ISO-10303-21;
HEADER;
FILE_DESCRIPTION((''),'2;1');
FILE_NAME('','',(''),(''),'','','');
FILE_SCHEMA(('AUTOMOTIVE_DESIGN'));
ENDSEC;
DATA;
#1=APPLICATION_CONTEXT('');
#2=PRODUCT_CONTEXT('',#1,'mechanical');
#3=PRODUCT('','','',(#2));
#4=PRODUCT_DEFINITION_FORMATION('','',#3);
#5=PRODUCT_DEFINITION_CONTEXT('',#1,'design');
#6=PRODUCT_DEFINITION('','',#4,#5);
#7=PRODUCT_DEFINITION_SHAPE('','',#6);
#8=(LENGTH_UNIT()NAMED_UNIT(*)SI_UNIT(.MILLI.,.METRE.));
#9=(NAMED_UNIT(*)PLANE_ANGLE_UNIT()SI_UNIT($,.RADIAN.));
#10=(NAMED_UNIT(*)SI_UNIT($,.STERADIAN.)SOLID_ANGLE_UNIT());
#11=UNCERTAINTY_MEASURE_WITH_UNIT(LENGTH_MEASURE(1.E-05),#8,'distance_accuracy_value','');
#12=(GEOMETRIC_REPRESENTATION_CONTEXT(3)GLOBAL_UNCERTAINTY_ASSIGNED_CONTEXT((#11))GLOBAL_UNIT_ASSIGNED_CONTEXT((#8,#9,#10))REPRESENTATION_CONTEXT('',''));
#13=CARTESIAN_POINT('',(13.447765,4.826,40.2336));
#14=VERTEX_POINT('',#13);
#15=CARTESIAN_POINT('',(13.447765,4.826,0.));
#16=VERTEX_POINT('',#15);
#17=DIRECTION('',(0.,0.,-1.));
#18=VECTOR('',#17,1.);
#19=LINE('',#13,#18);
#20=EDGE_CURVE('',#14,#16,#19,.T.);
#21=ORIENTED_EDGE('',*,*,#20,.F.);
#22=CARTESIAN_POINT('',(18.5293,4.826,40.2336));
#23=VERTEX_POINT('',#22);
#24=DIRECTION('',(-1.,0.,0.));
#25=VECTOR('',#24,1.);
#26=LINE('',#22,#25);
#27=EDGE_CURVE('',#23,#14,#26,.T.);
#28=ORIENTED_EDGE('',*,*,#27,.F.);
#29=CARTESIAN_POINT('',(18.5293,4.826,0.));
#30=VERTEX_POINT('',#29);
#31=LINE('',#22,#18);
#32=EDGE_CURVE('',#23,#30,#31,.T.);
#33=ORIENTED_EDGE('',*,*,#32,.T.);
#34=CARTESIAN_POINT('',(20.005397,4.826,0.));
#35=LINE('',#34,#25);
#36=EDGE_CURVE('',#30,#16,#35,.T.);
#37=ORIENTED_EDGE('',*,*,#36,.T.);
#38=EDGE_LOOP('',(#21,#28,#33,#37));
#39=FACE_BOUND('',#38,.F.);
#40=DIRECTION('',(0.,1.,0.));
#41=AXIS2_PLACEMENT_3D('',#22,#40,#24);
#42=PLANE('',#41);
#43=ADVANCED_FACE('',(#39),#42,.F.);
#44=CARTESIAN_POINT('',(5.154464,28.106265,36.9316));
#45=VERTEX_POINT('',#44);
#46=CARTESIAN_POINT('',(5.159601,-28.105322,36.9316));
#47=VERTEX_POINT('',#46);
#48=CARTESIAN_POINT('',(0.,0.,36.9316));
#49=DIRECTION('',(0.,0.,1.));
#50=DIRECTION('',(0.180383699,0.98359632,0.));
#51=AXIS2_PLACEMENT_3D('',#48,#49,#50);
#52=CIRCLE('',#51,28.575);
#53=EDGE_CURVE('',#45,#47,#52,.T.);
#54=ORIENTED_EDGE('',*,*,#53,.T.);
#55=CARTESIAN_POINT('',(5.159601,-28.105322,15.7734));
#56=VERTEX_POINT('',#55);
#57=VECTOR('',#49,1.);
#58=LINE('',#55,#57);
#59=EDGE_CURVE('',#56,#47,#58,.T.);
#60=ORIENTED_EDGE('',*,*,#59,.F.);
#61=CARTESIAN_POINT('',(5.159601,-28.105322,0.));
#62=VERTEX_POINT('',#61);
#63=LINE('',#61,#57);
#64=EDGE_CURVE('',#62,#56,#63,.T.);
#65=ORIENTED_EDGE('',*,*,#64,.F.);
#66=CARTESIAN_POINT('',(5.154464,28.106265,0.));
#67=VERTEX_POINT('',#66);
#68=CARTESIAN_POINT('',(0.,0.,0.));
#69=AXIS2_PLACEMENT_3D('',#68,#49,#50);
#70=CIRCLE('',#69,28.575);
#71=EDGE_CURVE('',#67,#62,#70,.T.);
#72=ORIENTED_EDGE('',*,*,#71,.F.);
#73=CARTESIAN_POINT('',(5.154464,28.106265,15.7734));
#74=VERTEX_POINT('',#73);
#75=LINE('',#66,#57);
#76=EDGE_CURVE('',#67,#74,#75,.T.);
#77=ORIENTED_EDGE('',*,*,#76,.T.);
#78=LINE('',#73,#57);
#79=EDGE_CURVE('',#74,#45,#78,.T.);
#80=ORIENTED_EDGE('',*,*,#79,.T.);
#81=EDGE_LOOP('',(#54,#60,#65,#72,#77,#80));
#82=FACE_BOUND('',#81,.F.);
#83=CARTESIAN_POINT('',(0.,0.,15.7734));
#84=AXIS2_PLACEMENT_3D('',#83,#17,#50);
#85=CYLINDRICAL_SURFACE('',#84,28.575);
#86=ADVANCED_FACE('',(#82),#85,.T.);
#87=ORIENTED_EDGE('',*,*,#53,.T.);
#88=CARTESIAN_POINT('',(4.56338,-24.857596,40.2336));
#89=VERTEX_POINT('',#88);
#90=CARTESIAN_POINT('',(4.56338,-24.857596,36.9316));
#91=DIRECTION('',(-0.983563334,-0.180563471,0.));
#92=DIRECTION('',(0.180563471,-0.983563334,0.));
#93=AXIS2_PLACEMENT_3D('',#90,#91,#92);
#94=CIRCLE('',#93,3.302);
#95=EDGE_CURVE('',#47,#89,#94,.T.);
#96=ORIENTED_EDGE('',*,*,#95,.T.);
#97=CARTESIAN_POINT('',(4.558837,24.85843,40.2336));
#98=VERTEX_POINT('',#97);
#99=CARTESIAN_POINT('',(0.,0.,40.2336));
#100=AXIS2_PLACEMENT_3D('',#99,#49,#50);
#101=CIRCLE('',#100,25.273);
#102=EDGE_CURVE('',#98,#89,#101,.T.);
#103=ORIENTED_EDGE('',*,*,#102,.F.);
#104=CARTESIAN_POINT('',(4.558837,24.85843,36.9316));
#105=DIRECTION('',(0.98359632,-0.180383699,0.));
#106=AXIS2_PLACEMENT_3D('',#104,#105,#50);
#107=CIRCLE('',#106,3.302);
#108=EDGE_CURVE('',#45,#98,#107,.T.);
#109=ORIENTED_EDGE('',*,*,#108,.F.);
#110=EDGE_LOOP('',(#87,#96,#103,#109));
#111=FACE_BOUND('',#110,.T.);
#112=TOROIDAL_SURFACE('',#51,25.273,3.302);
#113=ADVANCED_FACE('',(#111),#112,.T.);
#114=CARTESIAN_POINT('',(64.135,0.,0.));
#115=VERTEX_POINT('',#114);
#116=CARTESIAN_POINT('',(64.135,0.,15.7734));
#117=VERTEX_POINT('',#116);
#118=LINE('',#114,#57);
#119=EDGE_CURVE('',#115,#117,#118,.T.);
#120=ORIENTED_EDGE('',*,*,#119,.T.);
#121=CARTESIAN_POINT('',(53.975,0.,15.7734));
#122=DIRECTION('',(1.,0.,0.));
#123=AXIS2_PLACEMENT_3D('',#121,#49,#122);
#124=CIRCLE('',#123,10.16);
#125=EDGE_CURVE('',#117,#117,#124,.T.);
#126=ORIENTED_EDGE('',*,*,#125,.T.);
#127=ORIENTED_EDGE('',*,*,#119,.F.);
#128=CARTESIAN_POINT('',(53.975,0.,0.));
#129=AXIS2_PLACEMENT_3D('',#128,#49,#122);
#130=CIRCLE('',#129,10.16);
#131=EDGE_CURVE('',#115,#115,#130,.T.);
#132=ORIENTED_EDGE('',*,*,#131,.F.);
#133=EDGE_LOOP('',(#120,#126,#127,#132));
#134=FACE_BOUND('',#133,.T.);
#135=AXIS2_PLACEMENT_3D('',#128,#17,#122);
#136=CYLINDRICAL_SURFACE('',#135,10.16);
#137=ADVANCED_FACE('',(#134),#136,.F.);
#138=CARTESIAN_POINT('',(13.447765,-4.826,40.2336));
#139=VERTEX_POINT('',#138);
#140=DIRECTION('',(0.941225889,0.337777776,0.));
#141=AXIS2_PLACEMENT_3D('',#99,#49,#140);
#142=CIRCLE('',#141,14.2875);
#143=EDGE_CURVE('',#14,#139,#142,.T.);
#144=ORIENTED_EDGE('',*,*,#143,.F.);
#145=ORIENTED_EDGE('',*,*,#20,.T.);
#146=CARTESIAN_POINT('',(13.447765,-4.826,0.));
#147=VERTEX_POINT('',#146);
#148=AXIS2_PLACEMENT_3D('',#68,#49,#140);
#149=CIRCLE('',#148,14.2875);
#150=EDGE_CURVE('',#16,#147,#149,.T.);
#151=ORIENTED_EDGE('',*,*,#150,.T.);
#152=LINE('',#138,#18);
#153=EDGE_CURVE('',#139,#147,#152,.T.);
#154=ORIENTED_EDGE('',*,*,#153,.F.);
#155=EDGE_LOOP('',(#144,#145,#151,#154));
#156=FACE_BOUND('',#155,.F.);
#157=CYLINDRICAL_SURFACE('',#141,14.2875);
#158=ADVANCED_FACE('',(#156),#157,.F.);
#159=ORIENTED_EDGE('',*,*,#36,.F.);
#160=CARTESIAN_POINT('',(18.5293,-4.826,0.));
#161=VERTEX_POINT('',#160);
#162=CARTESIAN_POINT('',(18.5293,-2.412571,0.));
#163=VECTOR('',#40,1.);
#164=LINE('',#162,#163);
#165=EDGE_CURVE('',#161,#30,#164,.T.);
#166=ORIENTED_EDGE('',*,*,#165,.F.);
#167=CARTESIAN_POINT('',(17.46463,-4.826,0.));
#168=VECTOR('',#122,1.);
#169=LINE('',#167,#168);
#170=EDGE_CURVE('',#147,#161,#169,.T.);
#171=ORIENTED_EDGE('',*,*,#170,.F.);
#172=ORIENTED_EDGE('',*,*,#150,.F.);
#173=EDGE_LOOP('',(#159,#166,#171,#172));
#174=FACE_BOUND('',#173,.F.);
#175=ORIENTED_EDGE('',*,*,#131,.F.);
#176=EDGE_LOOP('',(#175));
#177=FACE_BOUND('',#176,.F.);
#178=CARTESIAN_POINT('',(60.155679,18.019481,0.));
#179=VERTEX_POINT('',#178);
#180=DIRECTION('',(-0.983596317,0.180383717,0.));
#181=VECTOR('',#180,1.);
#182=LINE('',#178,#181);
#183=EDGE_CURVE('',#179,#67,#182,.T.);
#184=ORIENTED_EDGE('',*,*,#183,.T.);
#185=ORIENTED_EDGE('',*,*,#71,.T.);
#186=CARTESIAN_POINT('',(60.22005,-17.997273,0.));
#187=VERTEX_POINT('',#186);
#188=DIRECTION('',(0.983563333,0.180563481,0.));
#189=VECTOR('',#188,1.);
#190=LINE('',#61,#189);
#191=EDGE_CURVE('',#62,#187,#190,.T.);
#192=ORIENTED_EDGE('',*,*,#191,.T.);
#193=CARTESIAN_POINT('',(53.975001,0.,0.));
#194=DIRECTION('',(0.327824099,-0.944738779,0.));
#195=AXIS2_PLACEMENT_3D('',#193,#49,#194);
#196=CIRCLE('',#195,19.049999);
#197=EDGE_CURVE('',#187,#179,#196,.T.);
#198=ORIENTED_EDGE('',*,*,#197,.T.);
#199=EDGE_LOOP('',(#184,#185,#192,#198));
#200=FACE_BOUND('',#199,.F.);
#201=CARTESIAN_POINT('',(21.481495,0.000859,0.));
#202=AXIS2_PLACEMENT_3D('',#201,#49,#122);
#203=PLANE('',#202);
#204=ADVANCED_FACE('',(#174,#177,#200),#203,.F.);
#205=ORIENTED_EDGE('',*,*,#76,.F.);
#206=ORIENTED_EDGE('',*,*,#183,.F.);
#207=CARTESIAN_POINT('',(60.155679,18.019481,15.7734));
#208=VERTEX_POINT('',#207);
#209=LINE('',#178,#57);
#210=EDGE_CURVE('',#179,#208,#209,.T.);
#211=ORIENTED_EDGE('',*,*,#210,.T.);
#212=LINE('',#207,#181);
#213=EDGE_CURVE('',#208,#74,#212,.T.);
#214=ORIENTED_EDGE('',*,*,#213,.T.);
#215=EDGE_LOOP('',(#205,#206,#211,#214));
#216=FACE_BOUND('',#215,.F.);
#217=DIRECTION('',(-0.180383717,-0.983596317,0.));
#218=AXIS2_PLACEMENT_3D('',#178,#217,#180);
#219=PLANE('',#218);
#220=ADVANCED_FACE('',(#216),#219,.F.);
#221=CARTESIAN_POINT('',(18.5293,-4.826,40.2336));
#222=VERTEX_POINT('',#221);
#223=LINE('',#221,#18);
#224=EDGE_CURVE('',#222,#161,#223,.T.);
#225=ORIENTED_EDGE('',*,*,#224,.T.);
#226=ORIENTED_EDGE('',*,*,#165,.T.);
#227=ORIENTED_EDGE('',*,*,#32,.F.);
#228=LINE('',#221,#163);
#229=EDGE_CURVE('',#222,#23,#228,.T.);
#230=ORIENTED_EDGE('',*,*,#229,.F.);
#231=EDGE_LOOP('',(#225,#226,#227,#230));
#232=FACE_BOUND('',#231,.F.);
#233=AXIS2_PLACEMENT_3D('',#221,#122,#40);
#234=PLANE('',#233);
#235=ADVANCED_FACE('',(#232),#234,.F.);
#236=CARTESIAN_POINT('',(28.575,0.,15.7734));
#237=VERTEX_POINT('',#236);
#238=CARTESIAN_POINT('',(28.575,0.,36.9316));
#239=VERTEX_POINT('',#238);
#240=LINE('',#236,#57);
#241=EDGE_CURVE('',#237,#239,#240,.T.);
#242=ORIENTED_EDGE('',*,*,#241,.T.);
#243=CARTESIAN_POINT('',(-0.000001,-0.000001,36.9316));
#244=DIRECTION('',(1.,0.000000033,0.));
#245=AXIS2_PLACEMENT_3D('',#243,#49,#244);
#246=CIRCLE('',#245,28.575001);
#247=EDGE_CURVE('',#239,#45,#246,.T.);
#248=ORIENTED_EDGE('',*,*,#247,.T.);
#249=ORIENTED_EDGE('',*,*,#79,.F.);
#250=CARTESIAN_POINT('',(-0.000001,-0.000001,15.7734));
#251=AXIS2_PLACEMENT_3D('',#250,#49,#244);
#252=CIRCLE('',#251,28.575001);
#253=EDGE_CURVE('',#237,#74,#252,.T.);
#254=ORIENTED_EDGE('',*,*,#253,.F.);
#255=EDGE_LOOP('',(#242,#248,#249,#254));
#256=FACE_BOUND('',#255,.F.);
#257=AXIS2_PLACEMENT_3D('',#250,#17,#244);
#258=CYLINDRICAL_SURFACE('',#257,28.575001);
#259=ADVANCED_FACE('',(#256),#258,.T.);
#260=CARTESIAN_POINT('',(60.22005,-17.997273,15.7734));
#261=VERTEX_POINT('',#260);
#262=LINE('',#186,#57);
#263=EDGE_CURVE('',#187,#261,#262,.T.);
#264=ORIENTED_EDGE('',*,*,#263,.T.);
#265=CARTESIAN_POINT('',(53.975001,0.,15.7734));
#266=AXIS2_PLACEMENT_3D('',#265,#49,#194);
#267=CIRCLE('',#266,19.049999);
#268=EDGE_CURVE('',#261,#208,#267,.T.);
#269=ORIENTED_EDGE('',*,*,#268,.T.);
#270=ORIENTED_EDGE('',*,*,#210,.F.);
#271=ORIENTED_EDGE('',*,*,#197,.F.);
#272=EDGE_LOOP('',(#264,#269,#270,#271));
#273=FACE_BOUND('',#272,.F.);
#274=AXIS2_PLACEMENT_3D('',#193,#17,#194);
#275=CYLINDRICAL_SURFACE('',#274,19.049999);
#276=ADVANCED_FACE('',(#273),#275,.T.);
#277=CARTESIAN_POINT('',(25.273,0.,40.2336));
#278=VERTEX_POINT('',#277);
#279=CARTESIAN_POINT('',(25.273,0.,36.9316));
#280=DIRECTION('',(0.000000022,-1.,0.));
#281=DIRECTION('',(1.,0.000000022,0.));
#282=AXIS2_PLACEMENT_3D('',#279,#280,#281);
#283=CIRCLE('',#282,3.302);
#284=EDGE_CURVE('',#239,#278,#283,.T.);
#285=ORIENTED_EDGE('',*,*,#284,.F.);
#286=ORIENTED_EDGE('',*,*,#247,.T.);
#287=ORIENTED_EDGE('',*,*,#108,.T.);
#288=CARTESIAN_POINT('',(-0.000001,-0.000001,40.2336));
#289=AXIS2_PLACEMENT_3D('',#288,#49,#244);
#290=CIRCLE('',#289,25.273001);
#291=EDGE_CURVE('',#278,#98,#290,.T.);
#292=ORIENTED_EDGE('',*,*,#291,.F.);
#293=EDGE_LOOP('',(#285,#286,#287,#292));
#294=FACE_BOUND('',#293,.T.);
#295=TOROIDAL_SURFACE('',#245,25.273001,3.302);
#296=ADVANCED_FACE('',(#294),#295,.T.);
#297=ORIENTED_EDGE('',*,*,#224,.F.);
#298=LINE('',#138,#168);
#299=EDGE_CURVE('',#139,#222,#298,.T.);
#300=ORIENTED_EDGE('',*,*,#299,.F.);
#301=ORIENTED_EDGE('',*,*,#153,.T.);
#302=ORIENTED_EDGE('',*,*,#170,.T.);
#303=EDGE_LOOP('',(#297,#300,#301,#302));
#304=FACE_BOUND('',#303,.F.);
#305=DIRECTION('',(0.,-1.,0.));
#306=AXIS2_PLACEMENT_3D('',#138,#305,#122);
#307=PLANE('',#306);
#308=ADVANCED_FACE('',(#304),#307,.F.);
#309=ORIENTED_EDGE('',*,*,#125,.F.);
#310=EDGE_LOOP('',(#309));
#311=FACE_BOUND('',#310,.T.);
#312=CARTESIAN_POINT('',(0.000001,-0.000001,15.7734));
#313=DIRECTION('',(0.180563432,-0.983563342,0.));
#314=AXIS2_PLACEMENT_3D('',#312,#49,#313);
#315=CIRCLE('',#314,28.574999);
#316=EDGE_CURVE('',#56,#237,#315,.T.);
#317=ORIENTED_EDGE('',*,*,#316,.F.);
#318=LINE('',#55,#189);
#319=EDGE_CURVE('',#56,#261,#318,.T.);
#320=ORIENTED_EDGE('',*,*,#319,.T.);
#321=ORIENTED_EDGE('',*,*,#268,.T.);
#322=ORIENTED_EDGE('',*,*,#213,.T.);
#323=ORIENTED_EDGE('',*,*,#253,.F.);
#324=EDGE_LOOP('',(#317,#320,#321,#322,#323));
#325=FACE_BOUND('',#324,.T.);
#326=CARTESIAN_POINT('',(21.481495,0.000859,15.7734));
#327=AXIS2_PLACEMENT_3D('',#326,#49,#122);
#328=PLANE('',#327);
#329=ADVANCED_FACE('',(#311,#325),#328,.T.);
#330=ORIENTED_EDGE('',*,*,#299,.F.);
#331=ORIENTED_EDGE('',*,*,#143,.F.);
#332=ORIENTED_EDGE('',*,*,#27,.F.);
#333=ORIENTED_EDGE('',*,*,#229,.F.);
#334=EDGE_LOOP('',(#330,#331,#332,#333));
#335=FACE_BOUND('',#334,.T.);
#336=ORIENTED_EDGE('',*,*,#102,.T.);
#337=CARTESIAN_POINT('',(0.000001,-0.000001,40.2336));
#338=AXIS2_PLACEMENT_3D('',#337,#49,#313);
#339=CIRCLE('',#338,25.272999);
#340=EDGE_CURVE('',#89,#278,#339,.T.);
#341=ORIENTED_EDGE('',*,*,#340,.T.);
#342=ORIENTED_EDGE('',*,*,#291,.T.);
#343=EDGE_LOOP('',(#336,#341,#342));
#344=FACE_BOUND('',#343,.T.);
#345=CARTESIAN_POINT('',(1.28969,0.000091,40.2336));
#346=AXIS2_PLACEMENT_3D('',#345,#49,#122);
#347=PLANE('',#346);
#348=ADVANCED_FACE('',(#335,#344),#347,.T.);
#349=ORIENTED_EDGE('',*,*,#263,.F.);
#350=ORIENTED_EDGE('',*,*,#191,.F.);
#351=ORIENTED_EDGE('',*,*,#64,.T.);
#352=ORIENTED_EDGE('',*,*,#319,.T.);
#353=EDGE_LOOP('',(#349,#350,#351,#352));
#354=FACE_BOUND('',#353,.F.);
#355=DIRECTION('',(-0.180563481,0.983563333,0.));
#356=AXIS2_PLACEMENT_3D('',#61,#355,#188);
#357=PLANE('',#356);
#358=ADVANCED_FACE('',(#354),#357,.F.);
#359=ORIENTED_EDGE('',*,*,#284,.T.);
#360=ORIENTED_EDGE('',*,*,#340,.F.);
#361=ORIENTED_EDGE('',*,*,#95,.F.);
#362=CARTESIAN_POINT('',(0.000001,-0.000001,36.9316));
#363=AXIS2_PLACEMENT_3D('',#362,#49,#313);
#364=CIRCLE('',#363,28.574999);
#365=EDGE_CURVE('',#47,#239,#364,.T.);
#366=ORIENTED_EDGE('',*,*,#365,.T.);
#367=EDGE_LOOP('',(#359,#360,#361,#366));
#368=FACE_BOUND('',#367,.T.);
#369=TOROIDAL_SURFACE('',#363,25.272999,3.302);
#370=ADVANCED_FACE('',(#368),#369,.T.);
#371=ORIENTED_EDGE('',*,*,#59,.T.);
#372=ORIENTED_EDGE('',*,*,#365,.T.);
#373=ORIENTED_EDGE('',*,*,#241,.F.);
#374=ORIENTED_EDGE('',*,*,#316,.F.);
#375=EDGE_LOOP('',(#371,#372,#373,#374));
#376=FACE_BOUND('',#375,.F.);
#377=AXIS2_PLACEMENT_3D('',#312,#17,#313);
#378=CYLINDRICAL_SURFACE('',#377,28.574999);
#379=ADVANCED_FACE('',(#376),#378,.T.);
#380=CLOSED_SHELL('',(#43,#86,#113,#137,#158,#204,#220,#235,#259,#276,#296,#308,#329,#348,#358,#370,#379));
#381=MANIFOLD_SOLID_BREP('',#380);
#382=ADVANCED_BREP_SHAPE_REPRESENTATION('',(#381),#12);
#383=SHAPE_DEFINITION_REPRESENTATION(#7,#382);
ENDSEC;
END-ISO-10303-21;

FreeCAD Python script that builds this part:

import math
import FreeCAD as App
import Part
import Sketcher
from FreeCAD import Vector
Q = App.Units.Quantity


def edges_at(feature, points):
    """Names of the edges that pass closest to the given points."""
    edges = feature.Shape.Edges
    near = lambda p: min(range(len(edges)), key=lambda i: edges[i].distToShape(Part.Vertex(*p))[0])
    return sorted({f"Edge{near(p) + 1}" for p in points})

doc = App.newDocument("Part")
body = doc.addObject("PartDesign::Body", "Body")

# Sketch on XY plane
sketch1 = body.newObject("Sketcher::SketchObject", "Sketch")
sketch1.AttachmentSupport = (doc.getObject("XY_Plane"), [""])
sketch1.MapMode = "FlatFace"
sketch1.addGeometry(Part.LineSegment(Vector(60.155679, 18.019481, 0), Vector(5.154464, 28.106265, 0)), False)
sketch1.addGeometry(Part.ArcOfCircle(Part.Circle(Vector(0, 0, 0), Vector(0, 0, 1), 28.575), math.radians(79.60789), math.radians(280.402582)), False)
sketch1.addGeometry(Part.LineSegment(Vector(5.159601, -28.105322, 0), Vector(60.22005, -17.997273, 0)), False)
sketch1.addGeometry(Part.ArcOfCircle(Part.Circle(Vector(53.975001, 0, 0), Vector(0, 0, 1), 19.049999), math.radians(-70.86324), math.radians(71.068043)), False)
sketch1.addGeometry(Part.Circle(Vector(53.975, 0, 0), Vector(0, 0, 1), 10.16), False)
sketch1.addConstraint(Sketcher.Constraint("Coincident", 0, 2, 1, 1))
sketch1.addConstraint(Sketcher.Constraint("Coincident", 1, 2, 2, 1))
sketch1.addConstraint(Sketcher.Constraint("Coincident", 2, 2, 3, 1))
sketch1.addConstraint(Sketcher.Constraint("Coincident", 3, 2, 0, 1))
sketch1.addConstraint(Sketcher.Constraint("Coincident", 1, 3, -1, 1))
sketch1.addConstraint(Sketcher.Constraint("Coincident", 4, 3, 3, 3))
sketch1.addConstraint(Sketcher.Constraint("PointOnObject", 3, 3, -1))
sketch1.addConstraint(Sketcher.Constraint("Diameter", 4, Q("0.8 in")))
sketch1.addConstraint(Sketcher.Constraint("Radius", 3, Q("0.75 in")))
sketch1.addConstraint(Sketcher.Constraint("Radius", 1, Q("1.125 in")))
sketch1.addConstraint(Sketcher.Constraint("DistanceX", -1, 1, 3, 3, Q("2.125 in")))
sketch1.addConstraint(Sketcher.Constraint("DistanceY", 2, 2, 0, 2, Q("1.8150999 in")))
sketch1.addConstraint(Sketcher.Constraint("DistanceX", -1, 1, 1, 2, 5.159601))
sketch1.addConstraint(Sketcher.Constraint("DistanceX", -1, 1, 2, 2, 60.22005))
sketch1.addConstraint(Sketcher.Constraint("DistanceX", -1, 1, 3, 2, 60.155679))
pad1 = body.newObject("PartDesign::Pad", "Pad")
pad1.Profile = sketch1
pad1.Length = Q("0.621 in")

# Sketch on XY plane
sketch2 = body.newObject("Sketcher::SketchObject", "Sketch001")
sketch2.AttachmentSupport = (doc.getObject("XY_Plane"), [""])
sketch2.MapMode = "FlatFace"
sketch2.AttachmentOffset = App.Placement(Vector(0, 0, 0.621 * 25.4), App.Rotation())
sketch2.addGeometry(Part.ArcOfCircle(Part.Circle(Vector(0.000001, -0.000001, 0), Vector(0, 0, 1), 28.574999), math.radians(-79.59742), math.radians(0.000001)), False)
sketch2.addGeometry(Part.ArcOfCircle(Part.Circle(Vector(-0.000001, -0.000001, 0), Vector(0, 0, 1), 28.575001), math.radians(0.000002), math.radians(79.607888)), False)
sketch2.addGeometry(Part.ArcOfCircle(Part.Circle(Vector(0, 0, 0), Vector(0, 0, 1), 28.575), math.radians(79.60789), math.radians(280.402582)), False)
sketch2.addConstraint(Sketcher.Constraint("Tangent", 0, 2, 1, 1))
sketch2.addConstraint(Sketcher.Constraint("Tangent", 1, 2, 2, 1))
sketch2.addConstraint(Sketcher.Constraint("Tangent", 2, 2, 0, 1))
sketch2.addConstraint(Sketcher.Constraint("Coincident", 0, 3, -1, 1))
sketch2.addConstraint(Sketcher.Constraint("PointOnObject", 0, 2, -1))
sketch2.addConstraint(Sketcher.Constraint("Radius", 0, Q("1.125 in")))
sketch2.addConstraint(Sketcher.Constraint("DistanceX", -1, 1, 2, 2, 5.159601))
sketch2.addConstraint(Sketcher.Constraint("DistanceX", -1, 1, 1, 2, 5.154464))
pad2 = body.newObject("PartDesign::Pad", "Pad001")
pad2.Profile = sketch2
pad2.Length = Q("0.963 in")

# Sketch on XY plane
sketch3 = body.newObject("Sketcher::SketchObject", "Sketch002")
sketch3.AttachmentSupport = (doc.getObject("XY_Plane"), [""])
sketch3.MapMode = "FlatFace"
sketch3.AttachmentOffset = App.Placement(Vector(0, 0, 1.584 * 25.4), App.Rotation())
sketch3.addGeometry(Part.LineSegment(Vector(18.5293, 4.826, 0), Vector(13.447765, 4.826, 0)), False)
sketch3.addGeometry(Part.ArcOfCircle(Part.Circle(Vector(0, 0, 0), Vector(0, 0, 1), 14.2875), math.radians(19.741542), math.radians(340.258458)), False)
sketch3.addGeometry(Part.LineSegment(Vector(13.447765, -4.826, 0), Vector(18.5293, -4.826, 0)), False)
sketch3.addGeometry(Part.LineSegment(Vector(18.5293, -4.826, 0), Vector(18.5293, 4.826, 0)), False)
sketch3.addConstraint(Sketcher.Constraint("Coincident", 0, 2, 1, 1))
sketch3.addConstraint(Sketcher.Constraint("Coincident", 1, 2, 2, 1))
sketch3.addConstraint(Sketcher.Constraint("Coincident", 2, 2, 3, 1))
sketch3.addConstraint(Sketcher.Constraint("Coincident", 3, 2, 0, 1))
sketch3.addConstraint(Sketcher.Constraint("Horizontal", 0))
sketch3.addConstraint(Sketcher.Constraint("Horizontal", 2))
sketch3.addConstraint(Sketcher.Constraint("Vertical", 3))
sketch3.addConstraint(Sketcher.Constraint("Coincident", 1, 3, -1, 1))
sketch3.addConstraint(Sketcher.Constraint("Vertical", 0, 2, 1, 2))
sketch3.addConstraint(Sketcher.Constraint("Radius", 1, Q("0.5625 in")))
sketch3.addConstraint(Sketcher.Constraint("DistanceY", 3, 1, 3, 2, Q("0.38 in")))
sketch3.addConstraint(Sketcher.Constraint("DistanceX", -1, 1, 2, 2, Q("0.7295 in")))
pocket1 = body.newObject("PartDesign::Pocket", "Pocket")
pocket1.Profile = sketch3
pocket1.Type = "ThroughAll"
doc.recompute()

fillet = body.newObject("PartDesign::Fillet", "Fillet")
fillet.Base = (pocket1, edges_at(pocket1, [(-28.575, -0.003, 40.234)]))
fillet.Radius = Q("0.13 in")

doc.recompute()
